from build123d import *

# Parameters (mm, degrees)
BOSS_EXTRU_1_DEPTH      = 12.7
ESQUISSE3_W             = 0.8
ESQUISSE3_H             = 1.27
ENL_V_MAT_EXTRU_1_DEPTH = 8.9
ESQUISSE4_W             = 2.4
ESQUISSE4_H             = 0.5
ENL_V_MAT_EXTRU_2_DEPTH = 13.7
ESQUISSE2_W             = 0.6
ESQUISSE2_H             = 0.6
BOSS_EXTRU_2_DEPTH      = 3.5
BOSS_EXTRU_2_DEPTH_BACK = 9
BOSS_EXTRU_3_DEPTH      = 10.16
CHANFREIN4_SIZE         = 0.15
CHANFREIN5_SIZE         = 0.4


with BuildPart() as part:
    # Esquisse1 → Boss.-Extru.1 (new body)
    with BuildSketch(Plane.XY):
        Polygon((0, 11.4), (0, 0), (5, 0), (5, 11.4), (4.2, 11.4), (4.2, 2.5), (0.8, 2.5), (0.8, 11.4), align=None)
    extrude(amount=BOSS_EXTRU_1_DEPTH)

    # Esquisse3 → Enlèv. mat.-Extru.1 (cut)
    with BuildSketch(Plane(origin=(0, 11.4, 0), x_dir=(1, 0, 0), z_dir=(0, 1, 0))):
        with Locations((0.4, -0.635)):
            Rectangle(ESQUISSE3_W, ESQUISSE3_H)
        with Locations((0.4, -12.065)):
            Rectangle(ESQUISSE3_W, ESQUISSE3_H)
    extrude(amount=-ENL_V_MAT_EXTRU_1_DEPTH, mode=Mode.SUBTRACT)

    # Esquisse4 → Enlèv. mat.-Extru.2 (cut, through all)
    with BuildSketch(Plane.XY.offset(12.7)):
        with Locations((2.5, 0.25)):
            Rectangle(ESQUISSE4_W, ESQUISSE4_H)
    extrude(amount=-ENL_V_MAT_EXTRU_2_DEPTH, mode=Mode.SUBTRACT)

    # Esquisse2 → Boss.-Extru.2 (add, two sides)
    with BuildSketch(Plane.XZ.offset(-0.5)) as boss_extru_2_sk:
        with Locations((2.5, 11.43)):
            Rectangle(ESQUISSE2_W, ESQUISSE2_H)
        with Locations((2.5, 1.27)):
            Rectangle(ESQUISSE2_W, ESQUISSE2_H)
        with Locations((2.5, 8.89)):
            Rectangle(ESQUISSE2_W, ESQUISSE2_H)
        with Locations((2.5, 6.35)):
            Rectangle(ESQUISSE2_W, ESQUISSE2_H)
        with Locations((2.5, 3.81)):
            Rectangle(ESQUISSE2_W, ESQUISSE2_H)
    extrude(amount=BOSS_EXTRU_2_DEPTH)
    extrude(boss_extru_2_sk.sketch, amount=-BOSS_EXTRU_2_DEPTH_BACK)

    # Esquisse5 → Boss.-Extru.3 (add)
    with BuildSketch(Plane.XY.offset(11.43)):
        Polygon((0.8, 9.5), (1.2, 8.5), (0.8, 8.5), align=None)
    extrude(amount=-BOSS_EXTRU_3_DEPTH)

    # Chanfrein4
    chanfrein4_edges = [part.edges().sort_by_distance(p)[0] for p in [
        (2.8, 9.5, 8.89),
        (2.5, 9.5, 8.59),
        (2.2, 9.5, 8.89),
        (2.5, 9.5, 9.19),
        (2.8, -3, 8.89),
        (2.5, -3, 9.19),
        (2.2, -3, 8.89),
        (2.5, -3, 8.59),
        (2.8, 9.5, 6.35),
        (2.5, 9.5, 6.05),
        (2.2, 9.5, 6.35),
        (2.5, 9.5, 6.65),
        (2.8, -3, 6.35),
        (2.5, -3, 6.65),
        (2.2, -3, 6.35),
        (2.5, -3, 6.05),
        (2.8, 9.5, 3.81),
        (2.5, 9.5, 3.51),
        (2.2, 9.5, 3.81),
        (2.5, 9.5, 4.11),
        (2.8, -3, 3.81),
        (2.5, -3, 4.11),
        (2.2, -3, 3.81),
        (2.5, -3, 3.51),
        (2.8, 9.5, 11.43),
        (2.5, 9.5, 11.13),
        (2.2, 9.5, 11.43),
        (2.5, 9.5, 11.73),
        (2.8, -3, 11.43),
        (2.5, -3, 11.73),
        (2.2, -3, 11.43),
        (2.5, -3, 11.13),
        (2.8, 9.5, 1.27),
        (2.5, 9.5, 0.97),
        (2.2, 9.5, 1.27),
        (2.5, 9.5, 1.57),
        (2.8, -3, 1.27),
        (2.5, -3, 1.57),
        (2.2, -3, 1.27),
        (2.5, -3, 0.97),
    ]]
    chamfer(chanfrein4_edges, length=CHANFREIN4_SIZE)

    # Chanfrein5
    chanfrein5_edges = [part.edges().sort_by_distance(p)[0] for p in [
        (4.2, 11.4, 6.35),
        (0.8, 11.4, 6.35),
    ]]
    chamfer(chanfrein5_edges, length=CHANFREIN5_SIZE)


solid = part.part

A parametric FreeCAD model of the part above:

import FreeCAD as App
import Part
import Sketcher
from FreeCAD import Vector


def edges_at(feature, points):
    """Names of the edges that pass closest to the given points."""
    edges = feature.Shape.Edges
    near = lambda p: min(range(len(edges)), key=lambda i: edges[i].distToShape(Part.Vertex(*p))[0])
    return sorted({f"Edge{near(p) + 1}" for p in points})


def add_polygon(sketch, points):
    """Adds a closed chain of lines whose ends are joined by coincident constraints."""
    first, n = sketch.GeometryCount, len(points)
    for a, b in zip(points, points[1:] + points[:1]):
        sketch.addGeometry(Part.LineSegment(App.Vector(*a, 0), App.Vector(*b, 0)), False)
    for i in range(n):
        sketch.addConstraint(Sketcher.Constraint("Coincident", first + i, 2, first + (i + 1) % n, 1))

doc = App.newDocument("Part")
body = doc.addObject("PartDesign::Body", "Body")

# Sketch on XY plane
sketch1 = body.newObject("Sketcher::SketchObject", "Sketch")
sketch1.AttachmentSupport = (doc.getObject("XY_Plane"), [""])
sketch1.MapMode = "FlatFace"
add_polygon(sketch1, [(0, 11.4), (0, 0), (5, 0), (5, 11.4), (4.2, 11.4), (4.2, 2.5), (0.8, 2.5), (0.8, 11.4)])  # lines 0-7
sketch1.addConstraint([
    Sketcher.Constraint("Vertical", 0),
    Sketcher.Constraint("Horizontal", 1),
    Sketcher.Constraint("Vertical", 2),
    Sketcher.Constraint("Horizontal", 3),
    Sketcher.Constraint("Vertical", 4),
    Sketcher.Constraint("Horizontal", 5),
    Sketcher.Constraint("Vertical", 6),
    Sketcher.Constraint("Horizontal", 7),
    Sketcher.Constraint("Coincident", 0, 2, -1, 1),
    Sketcher.Constraint("Horizontal", 3, 2, 6, 2),
    Sketcher.Constraint("Equal", 3, 7),
    Sketcher.Constraint("DistanceX", 1, 1, 1, 2, 5.0),
    Sketcher.Constraint("DistanceX", 3, 2, 3, 1, 0.8),
    Sketcher.Constraint("DistanceY", 0, 2, 0, 1, 11.4),
    Sketcher.Constraint("DistanceY", 4, 2, 4, 1, 8.9),
])
pad1 = body.newObject("PartDesign::Pad", "Pad")
pad1.Profile = sketch1
pad1.Length = 12.7

# Sketch on XZ plane
sketch2 = body.newObject("Sketcher::SketchObject", "Sketch001")
sketch2.AttachmentSupport = (doc.getObject("XZ_Plane"), [""])
sketch2.MapMode = "FlatFace"
sketch2.AttachmentOffset = App.Placement(Vector(0, 0, -11.4), App.Rotation())
add_polygon(sketch2, [(0, 0), (0, 1.27), (0.8, 1.27), (0.8, 0)])  # lines 0-3
add_polygon(sketch2, [(0, 11.43), (0, 12.7), (0.8, 12.7), (0.8, 11.43)])  # lines 4-7
sketch2.addConstraint([
    Sketcher.Constraint("Vertical", 0),
    Sketcher.Constraint("Horizontal", 1),
    Sketcher.Constraint("Vertical", 2),
    Sketcher.Constraint("Horizontal", 3),
    Sketcher.Constraint("Vertical", 4),
    Sketcher.Constraint("Horizontal", 5),
    Sketcher.Constraint("Vertical", 6),
    Sketcher.Constraint("Horizontal", 7),
    Sketcher.Constraint("Coincident", 3, 2, -1, 1),
    Sketcher.Constraint("PointOnObject", 4, 2, -2),
    Sketcher.Constraint("Vertical", 2, 2, 5, 2),
    Sketcher.Constraint("Equal", 2, 4),
    Sketcher.Constraint("DistanceX", 1, 1, 1, 2, 0.8),
    Sketcher.Constraint("DistanceY", 0, 1, 0, 2, 1.27),
    Sketcher.Constraint("DistanceY", -1, 1, 4, 2, 12.7),
])
pocket1 = body.newObject("PartDesign::Pocket", "Pocket")
pocket1.Profile = sketch2
pocket1.Length = 8.9
pocket1.Reversed = True

# Sketch on XY plane
sketch3 = body.newObject("Sketcher::SketchObject", "Sketch002")
sketch3.AttachmentSupport = (doc.getObject("XY_Plane"), [""])
sketch3.MapMode = "FlatFace"
sketch3.AttachmentOffset = App.Placement(Vector(0, 0, 12.7), App.Rotation())
add_polygon(sketch3, [(1.3, 0.5), (1.3, 0), (3.7, 0), (3.7, 0.5)])  # lines 0-3
sketch3.addConstraint([
    Sketcher.Constraint("Vertical", 0),
    Sketcher.Constraint("Horizontal", 1),
    Sketcher.Constraint("Vertical", 2),
    Sketcher.Constraint("Horizontal", 3),
    Sketcher.Constraint("PointOnObject", 0, 2, -1),
    Sketcher.Constraint("DistanceX", 1, 1, 1, 2, 2.4),
    Sketcher.Constraint("DistanceY", 0, 2, 0, 1, 0.5),
    Sketcher.Constraint("DistanceX", -1, 1, 0, 2, 1.3),
])
pocket2 = body.newObject("PartDesign::Pocket", "Pocket001")
pocket2.Profile = sketch3
pocket2.Type = "ThroughAll"

# Sketch on XZ plane
sketch4 = body.newObject("Sketcher::SketchObject", "Sketch003")
sketch4.AttachmentSupport = (doc.getObject("XZ_Plane"), [""])
sketch4.MapMode = "FlatFace"
sketch4.AttachmentOffset = App.Placement(Vector(0, 0, -0.5), App.Rotation())
add_polygon(sketch4, [(2.2, 11.73), (2.2, 11.13), (2.8, 11.13), (2.8, 11.73)])  # lines 0-3
add_polygon(sketch4, [(2.2, 1.57), (2.2, 0.97), (2.8, 0.97), (2.8, 1.57)])  # lines 4-7
add_polygon(sketch4, [(2.2, 9.19), (2.2, 8.59), (2.8, 8.59), (2.8, 9.19)])  # lines 8-11
add_polygon(sketch4, [(2.2, 6.65), (2.2, 6.05), (2.8, 6.05), (2.8, 6.65)])  # lines 12-15
add_polygon(sketch4, [(2.2, 4.11), (2.2, 3.51), (2.8, 3.51), (2.8, 4.11)])  # lines 16-19
sketch4.addConstraint([
    Sketcher.Constraint("Vertical", 0),
    Sketcher.Constraint("Horizontal", 1),
    Sketcher.Constraint("Vertical", 2),
    Sketcher.Constraint("Horizontal", 3),
    Sketcher.Constraint("Vertical", 4),
    Sketcher.Constraint("Horizontal", 5),
    Sketcher.Constraint("Vertical", 6),
    Sketcher.Constraint("Horizontal", 7),
    Sketcher.Constraint("Vertical", 8),
    Sketcher.Constraint("Horizontal", 9),
    Sketcher.Constraint("Vertical", 10),
    Sketcher.Constraint("Horizontal", 11),
    Sketcher.Constraint("Vertical", 12),
    Sketcher.Constraint("Horizontal", 13),
    Sketcher.Constraint("Vertical", 14),
    Sketcher.Constraint("Horizontal", 15),
    Sketcher.Constraint("Vertical", 16),
    Sketcher.Constraint("Horizontal", 17),
    Sketcher.Constraint("Vertical", 18),
    Sketcher.Constraint("Horizontal", 19),
    Sketcher.Constraint("Vertical", 3, 2, 4, 2),
    Sketcher.Constraint("Vertical", 2, 2, 5, 2),
    Sketcher.Constraint("Vertical", 7, 2, 8, 2),
    Sketcher.Constraint("Vertical", 6, 2, 9, 2),
    Sketcher.Constraint("Vertical", 11, 2, 12, 2),
    Sketcher.Constraint("Vertical", 10, 2, 13, 2),
    Sketcher.Constraint("Vertical", 15, 2, 16, 2),
    Sketcher.Constraint("Vertical", 14, 2, 17, 2),
    Sketcher.Constraint("Equal", 19, 0),
    Sketcher.Constraint("Equal", 2, 4),
    Sketcher.Constraint("Equal", 6, 8),
    Sketcher.Constraint("Equal", 10, 12),
    Sketcher.Constraint("Equal", 14, 16),
    Sketcher.Constraint("DistanceX", 1, 1, 1, 2, 0.6),
    Sketcher.Constraint("DistanceX", -1, 1, 0, 2, 2.2),
    Sketcher.Constraint("DistanceY", -1, 1, 0, 2, 11.13),
    Sketcher.Constraint("DistanceY", -1, 1, 4, 2, 0.97),
    Sketcher.Constraint("DistanceY", -1, 1, 8, 2, 8.59),
    Sketcher.Constraint("DistanceY", -1, 1, 12, 2, 6.05),
    Sketcher.Constraint("DistanceY", -1, 1, 16, 2, 3.51),
])
pad2 = body.newObject("PartDesign::Pad", "Pad001")
pad2.Profile = sketch4
pad2.Type = "TwoLengths"
pad2.Length = 3.5
pad2.Length2 = 9

# Sketch on XY plane
sketch5 = body.newObject("Sketcher::SketchObject", "Sketch004")
sketch5.AttachmentSupport = (doc.getObject("XY_Plane"), [""])
sketch5.MapMode = "FlatFace"
sketch5.AttachmentOffset = App.Placement(Vector(0, 0, 11.43), App.Rotation())
add_polygon(sketch5, [(1.2, 8.5), (0.8, 9.5), (0.8, 8.5)])  # lines 0-2
sketch5.addConstraint([
    Sketcher.Constraint("Vertical", 1),
    Sketcher.Constraint("Horizontal", 2),
    Sketcher.Constraint("DistanceY", 1, 2, 1, 1, 1.0),
    Sketcher.Constraint("DistanceX", 2, 1, 2, 2, 0.4),
    Sketcher.Constraint("DistanceX", -1, 1, 0, 2, 0.8),
    Sketcher.Constraint("DistanceY", -1, 1, 0, 2, 9.5),
])
pad3 = body.newObject("PartDesign::Pad", "Pad002")
pad3.Profile = sketch5
pad3.Length = 10.16
pad3.Reversed = True
doc.recompute()

chamfer = body.newObject("PartDesign::Chamfer", "Chamfer")
chamfer.Base = (pad3, edges_at(pad3, [
    (2.8, 9.5, 8.89),
    (2.5, 9.5, 8.59),
    (2.2, 9.5, 8.89),
    (2.5, 9.5, 9.19),
    (2.8, -3, 8.89),
    (2.5, -3, 9.19),
    (2.2, -3, 8.89),
    (2.5, -3, 8.59),
    (2.8, 9.5, 6.35),
    (2.5, 9.5, 6.05),
    (2.2, 9.5, 6.35),
    (2.5, 9.5, 6.65),
    (2.8, -3, 6.35),
    (2.5, -3, 6.65),
    (2.2, -3, 6.35),
    (2.5, -3, 6.05),
    (2.8, 9.5, 3.81),
    (2.5, 9.5, 3.51),
    (2.2, 9.5, 3.81),
    (2.5, 9.5, 4.11),
    (2.8, -3, 3.81),
    (2.5, -3, 4.11),
    (2.2, -3, 3.81),
    (2.5, -3, 3.51),
    (2.8, 9.5, 11.43),
    (2.5, 9.5, 11.13),
    (2.2, 9.5, 11.43),
    (2.5, 9.5, 11.73),
    (2.8, -3, 11.43),
    (2.5, -3, 11.73),
    (2.2, -3, 11.43),
    (2.5, -3, 11.13),
    (2.8, 9.5, 1.27),
    (2.5, 9.5, 0.97),
    (2.2, 9.5, 1.27),
    (2.5, 9.5, 1.57),
    (2.8, -3, 1.27),
    (2.5, -3, 1.57),
    (2.2, -3, 1.27),
    (2.5, -3, 0.97),
]))
chamfer.Size = 0.15
doc.recompute()

chamfer2 = body.newObject("PartDesign::Chamfer", "Chamfer001")
chamfer2.Base = (chamfer, edges_at(chamfer, [(4.2, 11.4, 6.35), (0.8, 11.4, 6.35)]))
chamfer2.Size = 0.4

doc.recompute()
